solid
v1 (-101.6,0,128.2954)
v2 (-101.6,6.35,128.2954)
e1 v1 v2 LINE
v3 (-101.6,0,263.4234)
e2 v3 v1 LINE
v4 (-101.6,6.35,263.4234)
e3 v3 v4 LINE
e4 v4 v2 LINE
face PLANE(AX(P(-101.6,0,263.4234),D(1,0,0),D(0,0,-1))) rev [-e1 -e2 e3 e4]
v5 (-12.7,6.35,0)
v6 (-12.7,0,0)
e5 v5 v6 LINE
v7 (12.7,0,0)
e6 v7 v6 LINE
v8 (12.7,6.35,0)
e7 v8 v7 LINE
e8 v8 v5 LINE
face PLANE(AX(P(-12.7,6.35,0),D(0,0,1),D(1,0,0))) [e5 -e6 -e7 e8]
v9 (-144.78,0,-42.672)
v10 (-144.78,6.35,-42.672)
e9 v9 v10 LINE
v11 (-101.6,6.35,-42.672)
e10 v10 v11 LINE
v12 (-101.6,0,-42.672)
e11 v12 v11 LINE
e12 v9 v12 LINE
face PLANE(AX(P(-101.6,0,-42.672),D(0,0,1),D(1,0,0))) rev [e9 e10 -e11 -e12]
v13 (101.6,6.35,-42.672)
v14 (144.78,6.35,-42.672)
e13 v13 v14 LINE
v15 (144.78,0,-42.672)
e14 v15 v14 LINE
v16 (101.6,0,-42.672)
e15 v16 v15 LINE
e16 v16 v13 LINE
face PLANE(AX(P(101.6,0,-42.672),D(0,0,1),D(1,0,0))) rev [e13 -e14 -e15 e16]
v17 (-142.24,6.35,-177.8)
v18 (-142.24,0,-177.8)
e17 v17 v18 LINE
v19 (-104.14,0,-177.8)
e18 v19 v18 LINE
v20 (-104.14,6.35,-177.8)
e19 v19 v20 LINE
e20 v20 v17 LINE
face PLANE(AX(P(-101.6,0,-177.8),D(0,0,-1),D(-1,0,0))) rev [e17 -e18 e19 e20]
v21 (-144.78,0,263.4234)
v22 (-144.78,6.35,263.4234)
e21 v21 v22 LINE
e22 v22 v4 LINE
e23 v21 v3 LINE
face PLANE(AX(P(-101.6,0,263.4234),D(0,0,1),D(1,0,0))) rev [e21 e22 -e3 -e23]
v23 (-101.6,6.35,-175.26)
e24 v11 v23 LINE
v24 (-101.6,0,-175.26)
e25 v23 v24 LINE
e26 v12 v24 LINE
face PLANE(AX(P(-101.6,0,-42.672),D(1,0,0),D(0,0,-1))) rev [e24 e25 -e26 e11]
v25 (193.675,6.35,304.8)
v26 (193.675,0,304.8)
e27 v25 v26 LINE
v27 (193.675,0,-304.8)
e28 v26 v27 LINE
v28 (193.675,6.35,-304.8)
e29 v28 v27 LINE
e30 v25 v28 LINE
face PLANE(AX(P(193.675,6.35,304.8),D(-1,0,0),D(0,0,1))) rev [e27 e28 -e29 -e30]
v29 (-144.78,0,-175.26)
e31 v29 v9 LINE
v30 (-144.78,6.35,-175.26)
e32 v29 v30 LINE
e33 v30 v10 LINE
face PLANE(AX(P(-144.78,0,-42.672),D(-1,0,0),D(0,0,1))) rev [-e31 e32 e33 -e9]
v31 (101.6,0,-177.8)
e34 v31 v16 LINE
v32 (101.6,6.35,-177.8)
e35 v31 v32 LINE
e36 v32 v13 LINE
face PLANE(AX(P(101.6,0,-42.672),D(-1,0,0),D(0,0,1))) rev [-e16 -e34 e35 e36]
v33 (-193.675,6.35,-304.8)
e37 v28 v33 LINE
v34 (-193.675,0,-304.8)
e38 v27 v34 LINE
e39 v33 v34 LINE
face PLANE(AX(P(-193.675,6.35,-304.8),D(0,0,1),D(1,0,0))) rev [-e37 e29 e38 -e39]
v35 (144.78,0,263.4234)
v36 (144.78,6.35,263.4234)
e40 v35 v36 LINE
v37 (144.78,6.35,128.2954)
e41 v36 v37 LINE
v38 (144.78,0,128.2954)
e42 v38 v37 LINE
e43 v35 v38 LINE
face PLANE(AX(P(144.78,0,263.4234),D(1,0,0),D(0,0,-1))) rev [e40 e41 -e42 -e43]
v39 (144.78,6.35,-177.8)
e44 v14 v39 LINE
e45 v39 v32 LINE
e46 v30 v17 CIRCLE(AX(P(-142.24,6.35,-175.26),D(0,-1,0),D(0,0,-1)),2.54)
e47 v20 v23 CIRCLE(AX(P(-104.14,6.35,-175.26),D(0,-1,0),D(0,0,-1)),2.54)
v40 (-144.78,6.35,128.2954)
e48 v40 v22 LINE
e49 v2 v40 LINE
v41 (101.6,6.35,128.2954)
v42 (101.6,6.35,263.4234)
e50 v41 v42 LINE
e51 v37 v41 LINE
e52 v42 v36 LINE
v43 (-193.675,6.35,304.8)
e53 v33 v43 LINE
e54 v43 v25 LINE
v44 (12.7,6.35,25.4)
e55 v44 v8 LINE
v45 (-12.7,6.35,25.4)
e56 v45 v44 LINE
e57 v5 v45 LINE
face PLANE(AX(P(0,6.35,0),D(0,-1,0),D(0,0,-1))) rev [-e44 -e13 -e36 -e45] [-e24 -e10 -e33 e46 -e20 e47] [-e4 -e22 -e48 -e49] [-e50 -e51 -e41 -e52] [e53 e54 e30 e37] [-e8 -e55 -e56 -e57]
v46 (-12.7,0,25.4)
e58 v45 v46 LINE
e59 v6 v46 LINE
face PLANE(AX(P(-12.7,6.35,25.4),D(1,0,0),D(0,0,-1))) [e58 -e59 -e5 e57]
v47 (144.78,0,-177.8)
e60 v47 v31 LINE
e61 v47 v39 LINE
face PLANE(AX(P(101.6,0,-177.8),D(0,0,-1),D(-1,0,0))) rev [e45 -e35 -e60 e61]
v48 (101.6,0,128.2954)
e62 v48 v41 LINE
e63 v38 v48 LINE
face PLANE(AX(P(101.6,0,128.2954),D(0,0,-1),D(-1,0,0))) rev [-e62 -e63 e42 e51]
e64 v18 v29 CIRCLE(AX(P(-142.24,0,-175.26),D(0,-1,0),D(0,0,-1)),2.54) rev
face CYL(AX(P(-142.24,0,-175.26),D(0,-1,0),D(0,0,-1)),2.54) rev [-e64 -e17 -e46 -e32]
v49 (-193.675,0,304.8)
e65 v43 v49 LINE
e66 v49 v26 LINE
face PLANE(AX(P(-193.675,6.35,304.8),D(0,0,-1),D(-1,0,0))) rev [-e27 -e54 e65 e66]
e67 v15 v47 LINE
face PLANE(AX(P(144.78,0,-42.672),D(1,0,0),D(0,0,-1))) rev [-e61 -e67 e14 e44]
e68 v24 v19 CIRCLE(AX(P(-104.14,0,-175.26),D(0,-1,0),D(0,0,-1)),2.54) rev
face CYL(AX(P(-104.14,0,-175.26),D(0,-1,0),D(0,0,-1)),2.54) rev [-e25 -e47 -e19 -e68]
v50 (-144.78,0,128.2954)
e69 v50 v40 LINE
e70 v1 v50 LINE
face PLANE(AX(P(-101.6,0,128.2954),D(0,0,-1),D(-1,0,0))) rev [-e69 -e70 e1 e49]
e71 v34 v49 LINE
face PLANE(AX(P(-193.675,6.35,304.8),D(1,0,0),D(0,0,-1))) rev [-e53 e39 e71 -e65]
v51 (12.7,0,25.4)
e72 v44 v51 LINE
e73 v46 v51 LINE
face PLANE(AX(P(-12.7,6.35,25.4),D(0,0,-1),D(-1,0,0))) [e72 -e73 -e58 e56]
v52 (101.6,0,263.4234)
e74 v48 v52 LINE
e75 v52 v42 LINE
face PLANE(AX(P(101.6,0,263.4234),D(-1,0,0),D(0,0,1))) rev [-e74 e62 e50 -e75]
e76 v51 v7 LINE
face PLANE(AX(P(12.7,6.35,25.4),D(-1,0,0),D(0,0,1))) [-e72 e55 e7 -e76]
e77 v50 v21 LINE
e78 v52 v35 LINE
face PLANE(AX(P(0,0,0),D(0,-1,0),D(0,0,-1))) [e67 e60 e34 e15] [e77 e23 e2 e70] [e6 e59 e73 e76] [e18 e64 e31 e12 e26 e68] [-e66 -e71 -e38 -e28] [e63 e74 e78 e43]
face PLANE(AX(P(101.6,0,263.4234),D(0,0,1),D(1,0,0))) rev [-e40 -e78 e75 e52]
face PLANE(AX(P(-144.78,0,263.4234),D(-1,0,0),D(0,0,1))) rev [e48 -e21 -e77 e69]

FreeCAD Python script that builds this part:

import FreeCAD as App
import Part
import Sketcher

V = App.Vector
Q = App.Units.Quantity


def edges_at(feature, points):
    """Names of the edges that pass closest to the given points."""
    edges = feature.Shape.Edges
    near = lambda p: min(range(len(edges)), key=lambda i: edges[i].distToShape(Part.Vertex(*p))[0])
    return sorted({f"Edge{near(p) + 1}" for p in points})


def add_polygon(sketch, points):
    """Adds a closed chain of lines whose ends are joined by coincident constraints."""
    first, n = sketch.GeometryCount, len(points)
    for a, b in zip(points, points[1:] + points[:1]):
        sketch.addGeometry(Part.LineSegment(App.Vector(*a, 0), App.Vector(*b, 0)), False)
    for i in range(n):
        sketch.addConstraint(Sketcher.Constraint("Coincident", first + i, 2, first + (i + 1) % n, 1))

doc = App.newDocument("Part")
body = doc.addObject("PartDesign::Body", "Body")

# Sketch on XZ plane
sketch1 = body.newObject("Sketcher::SketchObject", "Sketch")
sketch1.AttachmentSupport = (doc.getObject("XZ_Plane"), [""])
sketch1.MapMode = "FlatFace"
add_polygon(sketch1, [(-194, -305), (-194, 305), (194, 305), (194, -305)])  # lines 0-3
sketch1.addConstraint([
    Sketcher.Constraint("Vertical", 0),
    Sketcher.Constraint("Horizontal", 1),
    Sketcher.Constraint("Vertical", 2),
    Sketcher.Constraint("Horizontal", 3),
    Sketcher.Constraint("Symmetric", 0, 2, 2, 2, -1, 1),
    Sketcher.Constraint("DistanceY", 0, 1, 0, 2, Q("24 in")),
    Sketcher.Constraint("DistanceX", 1, 1, 1, 2, Q("15.25 in")),
])
pad1 = body.newObject("PartDesign::Pad", "Pad")
pad1.Profile = sketch1
pad1.Length = Q("0.25 in")
pad1.Reversed = True

# Sketch on XZ plane
sketch2 = body.newObject("Sketcher::SketchObject", "Sketch001")
sketch2.AttachmentSupport = (doc.getObject("XZ_Plane"), [""])
sketch2.MapMode = "FlatFace"
sketch2.AttachmentOffset = App.Placement(V(0, 0, -0.25 * 25.4), App.Rotation())
add_polygon(sketch2, [(102, 128), (102, 263), (145, 263), (145, 128)])  # lines 0-3
add_polygon(sketch2, [(102, -178), (102, -43), (145, -43), (145, -178)])  # lines 4-7
add_polygon(sketch2, [(-145, 128), (-145, 263), (-102, 263), (-102, 128)])  # lines 8-11
add_polygon(sketch2, [(-145, -178), (-145, -43), (-102, -43), (-102, -178)])  # lines 12-15
sketch2.addConstraint([
    Sketcher.Constraint("Vertical", 0),
    Sketcher.Constraint("Horizontal", 1),
    Sketcher.Constraint("Vertical", 2),
    Sketcher.Constraint("Horizontal", 3),
    Sketcher.Constraint("Vertical", 4),
    Sketcher.Constraint("Horizontal", 5),
    Sketcher.Constraint("Vertical", 6),
    Sketcher.Constraint("Horizontal", 7),
    Sketcher.Constraint("Vertical", 8),
    Sketcher.Constraint("Horizontal", 9),
    Sketcher.Constraint("Vertical", 10),
    Sketcher.Constraint("Horizontal", 11),
    Sketcher.Constraint("Vertical", 12),
    Sketcher.Constraint("Horizontal", 13),
    Sketcher.Constraint("Vertical", 14),
    Sketcher.Constraint("Horizontal", 15),
    Sketcher.Constraint("Symmetric", 1, 2, 8, 2, -2),
    Sketcher.Constraint("Symmetric", 3, 2, 10, 2, -2),
    Sketcher.Constraint("Symmetric", 5, 2, 12, 2, -2),
    Sketcher.Constraint("Symmetric", 7, 2, 14, 2, -2),
    Sketcher.Constraint("Vertical", 3, 2, 4, 2),
    Sketcher.Constraint("Vertical", 2, 2, 5, 2),
    Sketcher.Constraint("Equal", 2, 4),
    Sketcher.Constraint("DistanceX", 1, 1, 1, 2, Q("1.7 in")),
    Sketcher.Constraint("DistanceX", -1, 1, 0, 2, Q("4 in")),
    Sketcher.Constraint("DistanceY", 6, 2, -1, 1, Q("7 in")),
    Sketcher.Constraint("DistanceY", 0, 1, 0, 2, Q("5.32 in")),
    Sketcher.Constraint("DistanceY", -1, 1, 0, 2, Q("10.371 in")),
])
pocket1 = body.newObject("PartDesign::Pocket", "Pocket")
pocket1.Profile = sketch2
pocket1.Type = "ThroughAll"
pocket1.Reversed = True

# Sketch on XZ plane
sketch3 = body.newObject("Sketcher::SketchObject", "Sketch002")
sketch3.AttachmentSupport = (doc.getObject("XZ_Plane"), [""])
sketch3.MapMode = "FlatFace"
add_polygon(sketch3, [(-13, 0), (-13, 25), (13, 25), (13, 0)])  # lines 0-3
sketch3.addConstraint([
    Sketcher.Constraint("Vertical", 0),
    Sketcher.Constraint("Horizontal", 1),
    Sketcher.Constraint("Vertical", 2),
    Sketcher.Constraint("Horizontal", 3),
    Sketcher.Constraint("Symmetric", 2, 2, 3, 2, -1, 1),
    Sketcher.Constraint("Equal", 3, 0),
    Sketcher.Constraint("DistanceX", 1, 1, 1, 2, Q("1 in")),
])
pocket2 = body.newObject("PartDesign::Pocket", "Pocket001")
pocket2.Profile = sketch3
pocket2.Type = "ThroughAll"
doc.recompute()

fillet = body.newObject("PartDesign::Fillet", "Fillet")
fillet.Base = (pocket2, edges_at(pocket2, [(-144.78, 3.175, -177.8), (-101.6, 3.175, -177.8)]))
fillet.Radius = Q("0.1 in")

doc.recompute()
